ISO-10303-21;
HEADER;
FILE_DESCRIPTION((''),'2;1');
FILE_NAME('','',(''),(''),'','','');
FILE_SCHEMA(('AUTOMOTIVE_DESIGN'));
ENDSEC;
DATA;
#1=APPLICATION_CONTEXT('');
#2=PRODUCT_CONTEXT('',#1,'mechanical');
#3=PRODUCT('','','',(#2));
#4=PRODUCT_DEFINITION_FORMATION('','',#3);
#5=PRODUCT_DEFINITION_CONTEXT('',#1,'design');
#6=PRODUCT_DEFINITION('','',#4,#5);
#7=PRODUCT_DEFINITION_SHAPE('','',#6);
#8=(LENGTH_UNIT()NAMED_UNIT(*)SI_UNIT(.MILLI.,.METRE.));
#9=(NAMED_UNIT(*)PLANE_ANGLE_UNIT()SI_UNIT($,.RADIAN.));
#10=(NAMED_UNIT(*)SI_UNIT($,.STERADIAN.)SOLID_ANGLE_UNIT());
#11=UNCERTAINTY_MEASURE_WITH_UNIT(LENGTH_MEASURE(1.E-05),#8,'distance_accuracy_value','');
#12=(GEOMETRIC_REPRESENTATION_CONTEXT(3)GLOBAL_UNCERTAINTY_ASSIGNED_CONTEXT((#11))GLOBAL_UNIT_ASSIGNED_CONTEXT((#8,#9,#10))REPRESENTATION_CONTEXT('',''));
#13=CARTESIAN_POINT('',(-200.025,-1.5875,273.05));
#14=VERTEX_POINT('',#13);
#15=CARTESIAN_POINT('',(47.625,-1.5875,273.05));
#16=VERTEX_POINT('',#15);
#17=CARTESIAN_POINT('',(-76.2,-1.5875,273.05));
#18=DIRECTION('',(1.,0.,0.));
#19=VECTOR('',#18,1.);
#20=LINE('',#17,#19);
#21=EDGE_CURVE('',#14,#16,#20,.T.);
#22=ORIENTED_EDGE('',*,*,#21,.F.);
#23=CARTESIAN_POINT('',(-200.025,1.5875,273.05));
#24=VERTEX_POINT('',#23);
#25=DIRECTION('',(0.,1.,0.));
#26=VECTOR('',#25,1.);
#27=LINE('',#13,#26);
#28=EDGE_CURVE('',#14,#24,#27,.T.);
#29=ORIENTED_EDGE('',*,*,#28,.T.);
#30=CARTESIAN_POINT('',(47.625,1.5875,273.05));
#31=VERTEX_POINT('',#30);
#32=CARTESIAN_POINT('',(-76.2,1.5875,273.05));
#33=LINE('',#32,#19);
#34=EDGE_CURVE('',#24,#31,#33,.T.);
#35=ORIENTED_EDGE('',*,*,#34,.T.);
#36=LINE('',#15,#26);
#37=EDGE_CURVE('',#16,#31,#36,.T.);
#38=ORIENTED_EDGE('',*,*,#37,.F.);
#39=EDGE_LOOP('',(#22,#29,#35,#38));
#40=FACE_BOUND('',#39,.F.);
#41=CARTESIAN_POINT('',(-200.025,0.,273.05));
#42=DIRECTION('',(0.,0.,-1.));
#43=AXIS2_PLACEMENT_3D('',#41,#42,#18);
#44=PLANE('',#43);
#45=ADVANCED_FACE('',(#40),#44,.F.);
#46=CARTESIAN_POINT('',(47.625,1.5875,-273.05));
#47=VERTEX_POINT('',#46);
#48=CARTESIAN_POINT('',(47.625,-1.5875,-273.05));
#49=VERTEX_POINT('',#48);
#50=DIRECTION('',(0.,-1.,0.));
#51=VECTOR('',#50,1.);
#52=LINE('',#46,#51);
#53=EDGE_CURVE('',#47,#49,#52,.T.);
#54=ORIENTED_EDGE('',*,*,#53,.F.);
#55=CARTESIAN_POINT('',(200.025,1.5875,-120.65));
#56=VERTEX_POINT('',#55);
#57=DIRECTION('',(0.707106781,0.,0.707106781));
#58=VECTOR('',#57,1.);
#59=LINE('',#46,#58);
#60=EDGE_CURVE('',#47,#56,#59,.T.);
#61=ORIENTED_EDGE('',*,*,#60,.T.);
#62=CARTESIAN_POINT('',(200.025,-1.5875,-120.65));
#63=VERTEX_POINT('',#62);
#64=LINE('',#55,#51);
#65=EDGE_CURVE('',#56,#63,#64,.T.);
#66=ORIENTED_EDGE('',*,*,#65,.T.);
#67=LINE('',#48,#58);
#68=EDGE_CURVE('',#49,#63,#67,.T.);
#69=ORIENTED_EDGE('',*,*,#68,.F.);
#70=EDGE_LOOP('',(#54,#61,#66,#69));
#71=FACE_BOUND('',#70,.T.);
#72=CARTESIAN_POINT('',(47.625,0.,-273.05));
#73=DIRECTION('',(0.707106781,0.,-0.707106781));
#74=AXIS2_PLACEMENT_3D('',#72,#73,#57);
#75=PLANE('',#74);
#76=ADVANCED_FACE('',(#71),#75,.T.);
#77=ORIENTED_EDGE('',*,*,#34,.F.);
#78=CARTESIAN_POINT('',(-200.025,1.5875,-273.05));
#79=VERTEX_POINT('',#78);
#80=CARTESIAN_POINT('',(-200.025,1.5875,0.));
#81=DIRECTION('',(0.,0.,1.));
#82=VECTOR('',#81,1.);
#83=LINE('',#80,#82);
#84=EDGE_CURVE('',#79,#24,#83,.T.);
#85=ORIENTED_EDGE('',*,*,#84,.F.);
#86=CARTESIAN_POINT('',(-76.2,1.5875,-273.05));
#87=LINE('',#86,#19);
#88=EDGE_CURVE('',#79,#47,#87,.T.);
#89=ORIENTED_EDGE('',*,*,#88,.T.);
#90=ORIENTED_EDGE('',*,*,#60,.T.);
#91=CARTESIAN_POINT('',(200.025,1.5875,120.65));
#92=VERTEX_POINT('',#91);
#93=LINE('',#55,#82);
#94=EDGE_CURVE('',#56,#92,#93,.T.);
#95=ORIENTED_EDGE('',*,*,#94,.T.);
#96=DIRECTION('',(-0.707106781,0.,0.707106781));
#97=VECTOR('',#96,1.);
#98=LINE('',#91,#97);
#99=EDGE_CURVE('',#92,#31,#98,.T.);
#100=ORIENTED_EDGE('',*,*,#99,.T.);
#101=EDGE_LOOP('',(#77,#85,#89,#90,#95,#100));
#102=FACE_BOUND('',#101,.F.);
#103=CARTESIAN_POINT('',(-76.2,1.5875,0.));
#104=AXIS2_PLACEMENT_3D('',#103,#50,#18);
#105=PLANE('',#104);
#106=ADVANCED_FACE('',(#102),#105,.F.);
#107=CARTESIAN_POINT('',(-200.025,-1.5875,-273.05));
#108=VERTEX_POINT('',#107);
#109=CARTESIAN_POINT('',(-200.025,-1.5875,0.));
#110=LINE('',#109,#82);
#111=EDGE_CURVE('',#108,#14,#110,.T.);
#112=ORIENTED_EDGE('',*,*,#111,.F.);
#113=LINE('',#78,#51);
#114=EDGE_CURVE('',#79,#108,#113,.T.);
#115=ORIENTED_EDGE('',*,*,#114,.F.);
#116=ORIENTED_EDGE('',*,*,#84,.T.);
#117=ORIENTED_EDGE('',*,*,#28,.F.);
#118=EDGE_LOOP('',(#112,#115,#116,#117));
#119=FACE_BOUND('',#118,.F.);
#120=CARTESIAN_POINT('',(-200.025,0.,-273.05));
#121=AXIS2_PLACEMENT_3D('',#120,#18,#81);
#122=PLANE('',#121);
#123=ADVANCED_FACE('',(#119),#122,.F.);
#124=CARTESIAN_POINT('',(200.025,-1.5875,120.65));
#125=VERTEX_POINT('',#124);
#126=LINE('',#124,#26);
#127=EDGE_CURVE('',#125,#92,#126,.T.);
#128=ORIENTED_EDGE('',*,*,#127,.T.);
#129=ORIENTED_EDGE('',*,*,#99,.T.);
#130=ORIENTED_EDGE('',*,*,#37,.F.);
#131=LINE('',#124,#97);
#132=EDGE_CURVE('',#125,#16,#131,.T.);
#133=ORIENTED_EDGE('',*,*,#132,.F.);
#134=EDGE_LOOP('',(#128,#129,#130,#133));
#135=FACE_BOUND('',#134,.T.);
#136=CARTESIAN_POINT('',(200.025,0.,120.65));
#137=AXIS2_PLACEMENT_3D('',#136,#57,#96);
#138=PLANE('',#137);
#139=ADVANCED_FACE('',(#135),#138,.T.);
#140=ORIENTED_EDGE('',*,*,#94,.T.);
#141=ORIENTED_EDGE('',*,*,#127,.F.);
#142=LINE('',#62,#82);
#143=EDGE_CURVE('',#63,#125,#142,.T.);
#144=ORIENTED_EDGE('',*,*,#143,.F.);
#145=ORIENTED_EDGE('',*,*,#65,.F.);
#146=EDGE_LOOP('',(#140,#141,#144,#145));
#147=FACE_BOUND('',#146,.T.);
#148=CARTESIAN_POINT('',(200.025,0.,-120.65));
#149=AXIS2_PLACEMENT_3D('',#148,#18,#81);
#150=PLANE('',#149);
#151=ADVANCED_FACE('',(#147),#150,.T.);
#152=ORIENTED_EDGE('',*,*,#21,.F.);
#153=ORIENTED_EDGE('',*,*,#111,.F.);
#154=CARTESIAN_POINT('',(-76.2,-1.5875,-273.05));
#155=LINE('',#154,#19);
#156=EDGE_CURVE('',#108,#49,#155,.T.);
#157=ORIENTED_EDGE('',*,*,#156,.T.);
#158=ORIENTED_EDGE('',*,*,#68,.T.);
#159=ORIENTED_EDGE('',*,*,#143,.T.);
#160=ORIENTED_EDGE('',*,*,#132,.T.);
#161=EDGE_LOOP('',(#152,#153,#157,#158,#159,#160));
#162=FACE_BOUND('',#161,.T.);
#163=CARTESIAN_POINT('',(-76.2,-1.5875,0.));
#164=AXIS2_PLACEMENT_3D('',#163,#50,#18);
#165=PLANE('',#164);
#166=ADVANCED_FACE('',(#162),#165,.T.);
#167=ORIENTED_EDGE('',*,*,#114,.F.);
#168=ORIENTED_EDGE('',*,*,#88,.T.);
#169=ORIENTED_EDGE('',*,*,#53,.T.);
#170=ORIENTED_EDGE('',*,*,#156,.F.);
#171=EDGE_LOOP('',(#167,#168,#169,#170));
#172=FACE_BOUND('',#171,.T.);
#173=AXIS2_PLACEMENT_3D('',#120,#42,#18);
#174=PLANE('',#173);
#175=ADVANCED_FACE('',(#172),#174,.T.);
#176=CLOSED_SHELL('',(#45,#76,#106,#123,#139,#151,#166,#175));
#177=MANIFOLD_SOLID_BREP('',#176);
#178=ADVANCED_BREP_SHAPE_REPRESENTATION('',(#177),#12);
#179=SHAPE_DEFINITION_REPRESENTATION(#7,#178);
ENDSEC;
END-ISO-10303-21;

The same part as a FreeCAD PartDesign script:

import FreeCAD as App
import Part
import Sketcher
from FreeCAD import Vector
Q = App.Units.Quantity


def add_polygon(sketch, points):
    """Adds a closed chain of lines whose ends are joined by coincident constraints."""
    first, n = sketch.GeometryCount, len(points)
    for a, b in zip(points, points[1:] + points[:1]):
        sketch.addGeometry(Part.LineSegment(App.Vector(*a, 0), App.Vector(*b, 0)), False)
    for i in range(n):
        sketch.addConstraint(Sketcher.Constraint("Coincident", first + i, 2, first + (i + 1) % n, 1))

doc = App.newDocument("Part")
body = doc.addObject("PartDesign::Body", "Body")

sketch1 = doc.addObject("Sketcher::SketchObject", "Sketch")
body.addObject(sketch1)
sketch1.AttachmentSupport = (doc.XZ_Plane, [""])
sketch1.MapMode = "FlatFace"
add_polygon(sketch1, [(-200, 273), (-200, -273), (48, -273), (200, -121), (200, 121), (48, 273)])
sketch1.addConstraint(Sketcher.Constraint("Vertical", 0))
sketch1.addConstraint(Sketcher.Constraint("Horizontal", 1))
sketch1.addConstraint(Sketcher.Constraint("Vertical", 3))
sketch1.addConstraint(Sketcher.Constraint("Horizontal", 5))
sketch1.addConstraint(Sketcher.Constraint("Symmetric", 1, 2, 4, 2, -1))
sketch1.addConstraint(Sketcher.Constraint("Perpendicular", 2, 4))
sketch1.addConstraint(Sketcher.Constraint("Equal", 2, 4))
sketch1.addConstraint(Sketcher.Constraint("DistanceY", 0, 2, 0, 1, Q("21.5 in")))
sketch1.addConstraint(Sketcher.Constraint("DistanceY", 3, 1, 3, 2, Q("9.5 in")))
sketch1.addConstraint(Sketcher.Constraint("DistanceX", 1, 1, 1, 2, Q("9.75 in")))
sketch1.addConstraint(Sketcher.Constraint("DistanceX", 0, 2, -1, 1, Q("7.875 in")))
pad1 = doc.addObject("PartDesign::Pad", "Pad")
body.addObject(pad1)
pad1.Profile = sketch1
pad1.Length = Q("0.125 in")
pad1.Midplane = True

doc.recompute()
